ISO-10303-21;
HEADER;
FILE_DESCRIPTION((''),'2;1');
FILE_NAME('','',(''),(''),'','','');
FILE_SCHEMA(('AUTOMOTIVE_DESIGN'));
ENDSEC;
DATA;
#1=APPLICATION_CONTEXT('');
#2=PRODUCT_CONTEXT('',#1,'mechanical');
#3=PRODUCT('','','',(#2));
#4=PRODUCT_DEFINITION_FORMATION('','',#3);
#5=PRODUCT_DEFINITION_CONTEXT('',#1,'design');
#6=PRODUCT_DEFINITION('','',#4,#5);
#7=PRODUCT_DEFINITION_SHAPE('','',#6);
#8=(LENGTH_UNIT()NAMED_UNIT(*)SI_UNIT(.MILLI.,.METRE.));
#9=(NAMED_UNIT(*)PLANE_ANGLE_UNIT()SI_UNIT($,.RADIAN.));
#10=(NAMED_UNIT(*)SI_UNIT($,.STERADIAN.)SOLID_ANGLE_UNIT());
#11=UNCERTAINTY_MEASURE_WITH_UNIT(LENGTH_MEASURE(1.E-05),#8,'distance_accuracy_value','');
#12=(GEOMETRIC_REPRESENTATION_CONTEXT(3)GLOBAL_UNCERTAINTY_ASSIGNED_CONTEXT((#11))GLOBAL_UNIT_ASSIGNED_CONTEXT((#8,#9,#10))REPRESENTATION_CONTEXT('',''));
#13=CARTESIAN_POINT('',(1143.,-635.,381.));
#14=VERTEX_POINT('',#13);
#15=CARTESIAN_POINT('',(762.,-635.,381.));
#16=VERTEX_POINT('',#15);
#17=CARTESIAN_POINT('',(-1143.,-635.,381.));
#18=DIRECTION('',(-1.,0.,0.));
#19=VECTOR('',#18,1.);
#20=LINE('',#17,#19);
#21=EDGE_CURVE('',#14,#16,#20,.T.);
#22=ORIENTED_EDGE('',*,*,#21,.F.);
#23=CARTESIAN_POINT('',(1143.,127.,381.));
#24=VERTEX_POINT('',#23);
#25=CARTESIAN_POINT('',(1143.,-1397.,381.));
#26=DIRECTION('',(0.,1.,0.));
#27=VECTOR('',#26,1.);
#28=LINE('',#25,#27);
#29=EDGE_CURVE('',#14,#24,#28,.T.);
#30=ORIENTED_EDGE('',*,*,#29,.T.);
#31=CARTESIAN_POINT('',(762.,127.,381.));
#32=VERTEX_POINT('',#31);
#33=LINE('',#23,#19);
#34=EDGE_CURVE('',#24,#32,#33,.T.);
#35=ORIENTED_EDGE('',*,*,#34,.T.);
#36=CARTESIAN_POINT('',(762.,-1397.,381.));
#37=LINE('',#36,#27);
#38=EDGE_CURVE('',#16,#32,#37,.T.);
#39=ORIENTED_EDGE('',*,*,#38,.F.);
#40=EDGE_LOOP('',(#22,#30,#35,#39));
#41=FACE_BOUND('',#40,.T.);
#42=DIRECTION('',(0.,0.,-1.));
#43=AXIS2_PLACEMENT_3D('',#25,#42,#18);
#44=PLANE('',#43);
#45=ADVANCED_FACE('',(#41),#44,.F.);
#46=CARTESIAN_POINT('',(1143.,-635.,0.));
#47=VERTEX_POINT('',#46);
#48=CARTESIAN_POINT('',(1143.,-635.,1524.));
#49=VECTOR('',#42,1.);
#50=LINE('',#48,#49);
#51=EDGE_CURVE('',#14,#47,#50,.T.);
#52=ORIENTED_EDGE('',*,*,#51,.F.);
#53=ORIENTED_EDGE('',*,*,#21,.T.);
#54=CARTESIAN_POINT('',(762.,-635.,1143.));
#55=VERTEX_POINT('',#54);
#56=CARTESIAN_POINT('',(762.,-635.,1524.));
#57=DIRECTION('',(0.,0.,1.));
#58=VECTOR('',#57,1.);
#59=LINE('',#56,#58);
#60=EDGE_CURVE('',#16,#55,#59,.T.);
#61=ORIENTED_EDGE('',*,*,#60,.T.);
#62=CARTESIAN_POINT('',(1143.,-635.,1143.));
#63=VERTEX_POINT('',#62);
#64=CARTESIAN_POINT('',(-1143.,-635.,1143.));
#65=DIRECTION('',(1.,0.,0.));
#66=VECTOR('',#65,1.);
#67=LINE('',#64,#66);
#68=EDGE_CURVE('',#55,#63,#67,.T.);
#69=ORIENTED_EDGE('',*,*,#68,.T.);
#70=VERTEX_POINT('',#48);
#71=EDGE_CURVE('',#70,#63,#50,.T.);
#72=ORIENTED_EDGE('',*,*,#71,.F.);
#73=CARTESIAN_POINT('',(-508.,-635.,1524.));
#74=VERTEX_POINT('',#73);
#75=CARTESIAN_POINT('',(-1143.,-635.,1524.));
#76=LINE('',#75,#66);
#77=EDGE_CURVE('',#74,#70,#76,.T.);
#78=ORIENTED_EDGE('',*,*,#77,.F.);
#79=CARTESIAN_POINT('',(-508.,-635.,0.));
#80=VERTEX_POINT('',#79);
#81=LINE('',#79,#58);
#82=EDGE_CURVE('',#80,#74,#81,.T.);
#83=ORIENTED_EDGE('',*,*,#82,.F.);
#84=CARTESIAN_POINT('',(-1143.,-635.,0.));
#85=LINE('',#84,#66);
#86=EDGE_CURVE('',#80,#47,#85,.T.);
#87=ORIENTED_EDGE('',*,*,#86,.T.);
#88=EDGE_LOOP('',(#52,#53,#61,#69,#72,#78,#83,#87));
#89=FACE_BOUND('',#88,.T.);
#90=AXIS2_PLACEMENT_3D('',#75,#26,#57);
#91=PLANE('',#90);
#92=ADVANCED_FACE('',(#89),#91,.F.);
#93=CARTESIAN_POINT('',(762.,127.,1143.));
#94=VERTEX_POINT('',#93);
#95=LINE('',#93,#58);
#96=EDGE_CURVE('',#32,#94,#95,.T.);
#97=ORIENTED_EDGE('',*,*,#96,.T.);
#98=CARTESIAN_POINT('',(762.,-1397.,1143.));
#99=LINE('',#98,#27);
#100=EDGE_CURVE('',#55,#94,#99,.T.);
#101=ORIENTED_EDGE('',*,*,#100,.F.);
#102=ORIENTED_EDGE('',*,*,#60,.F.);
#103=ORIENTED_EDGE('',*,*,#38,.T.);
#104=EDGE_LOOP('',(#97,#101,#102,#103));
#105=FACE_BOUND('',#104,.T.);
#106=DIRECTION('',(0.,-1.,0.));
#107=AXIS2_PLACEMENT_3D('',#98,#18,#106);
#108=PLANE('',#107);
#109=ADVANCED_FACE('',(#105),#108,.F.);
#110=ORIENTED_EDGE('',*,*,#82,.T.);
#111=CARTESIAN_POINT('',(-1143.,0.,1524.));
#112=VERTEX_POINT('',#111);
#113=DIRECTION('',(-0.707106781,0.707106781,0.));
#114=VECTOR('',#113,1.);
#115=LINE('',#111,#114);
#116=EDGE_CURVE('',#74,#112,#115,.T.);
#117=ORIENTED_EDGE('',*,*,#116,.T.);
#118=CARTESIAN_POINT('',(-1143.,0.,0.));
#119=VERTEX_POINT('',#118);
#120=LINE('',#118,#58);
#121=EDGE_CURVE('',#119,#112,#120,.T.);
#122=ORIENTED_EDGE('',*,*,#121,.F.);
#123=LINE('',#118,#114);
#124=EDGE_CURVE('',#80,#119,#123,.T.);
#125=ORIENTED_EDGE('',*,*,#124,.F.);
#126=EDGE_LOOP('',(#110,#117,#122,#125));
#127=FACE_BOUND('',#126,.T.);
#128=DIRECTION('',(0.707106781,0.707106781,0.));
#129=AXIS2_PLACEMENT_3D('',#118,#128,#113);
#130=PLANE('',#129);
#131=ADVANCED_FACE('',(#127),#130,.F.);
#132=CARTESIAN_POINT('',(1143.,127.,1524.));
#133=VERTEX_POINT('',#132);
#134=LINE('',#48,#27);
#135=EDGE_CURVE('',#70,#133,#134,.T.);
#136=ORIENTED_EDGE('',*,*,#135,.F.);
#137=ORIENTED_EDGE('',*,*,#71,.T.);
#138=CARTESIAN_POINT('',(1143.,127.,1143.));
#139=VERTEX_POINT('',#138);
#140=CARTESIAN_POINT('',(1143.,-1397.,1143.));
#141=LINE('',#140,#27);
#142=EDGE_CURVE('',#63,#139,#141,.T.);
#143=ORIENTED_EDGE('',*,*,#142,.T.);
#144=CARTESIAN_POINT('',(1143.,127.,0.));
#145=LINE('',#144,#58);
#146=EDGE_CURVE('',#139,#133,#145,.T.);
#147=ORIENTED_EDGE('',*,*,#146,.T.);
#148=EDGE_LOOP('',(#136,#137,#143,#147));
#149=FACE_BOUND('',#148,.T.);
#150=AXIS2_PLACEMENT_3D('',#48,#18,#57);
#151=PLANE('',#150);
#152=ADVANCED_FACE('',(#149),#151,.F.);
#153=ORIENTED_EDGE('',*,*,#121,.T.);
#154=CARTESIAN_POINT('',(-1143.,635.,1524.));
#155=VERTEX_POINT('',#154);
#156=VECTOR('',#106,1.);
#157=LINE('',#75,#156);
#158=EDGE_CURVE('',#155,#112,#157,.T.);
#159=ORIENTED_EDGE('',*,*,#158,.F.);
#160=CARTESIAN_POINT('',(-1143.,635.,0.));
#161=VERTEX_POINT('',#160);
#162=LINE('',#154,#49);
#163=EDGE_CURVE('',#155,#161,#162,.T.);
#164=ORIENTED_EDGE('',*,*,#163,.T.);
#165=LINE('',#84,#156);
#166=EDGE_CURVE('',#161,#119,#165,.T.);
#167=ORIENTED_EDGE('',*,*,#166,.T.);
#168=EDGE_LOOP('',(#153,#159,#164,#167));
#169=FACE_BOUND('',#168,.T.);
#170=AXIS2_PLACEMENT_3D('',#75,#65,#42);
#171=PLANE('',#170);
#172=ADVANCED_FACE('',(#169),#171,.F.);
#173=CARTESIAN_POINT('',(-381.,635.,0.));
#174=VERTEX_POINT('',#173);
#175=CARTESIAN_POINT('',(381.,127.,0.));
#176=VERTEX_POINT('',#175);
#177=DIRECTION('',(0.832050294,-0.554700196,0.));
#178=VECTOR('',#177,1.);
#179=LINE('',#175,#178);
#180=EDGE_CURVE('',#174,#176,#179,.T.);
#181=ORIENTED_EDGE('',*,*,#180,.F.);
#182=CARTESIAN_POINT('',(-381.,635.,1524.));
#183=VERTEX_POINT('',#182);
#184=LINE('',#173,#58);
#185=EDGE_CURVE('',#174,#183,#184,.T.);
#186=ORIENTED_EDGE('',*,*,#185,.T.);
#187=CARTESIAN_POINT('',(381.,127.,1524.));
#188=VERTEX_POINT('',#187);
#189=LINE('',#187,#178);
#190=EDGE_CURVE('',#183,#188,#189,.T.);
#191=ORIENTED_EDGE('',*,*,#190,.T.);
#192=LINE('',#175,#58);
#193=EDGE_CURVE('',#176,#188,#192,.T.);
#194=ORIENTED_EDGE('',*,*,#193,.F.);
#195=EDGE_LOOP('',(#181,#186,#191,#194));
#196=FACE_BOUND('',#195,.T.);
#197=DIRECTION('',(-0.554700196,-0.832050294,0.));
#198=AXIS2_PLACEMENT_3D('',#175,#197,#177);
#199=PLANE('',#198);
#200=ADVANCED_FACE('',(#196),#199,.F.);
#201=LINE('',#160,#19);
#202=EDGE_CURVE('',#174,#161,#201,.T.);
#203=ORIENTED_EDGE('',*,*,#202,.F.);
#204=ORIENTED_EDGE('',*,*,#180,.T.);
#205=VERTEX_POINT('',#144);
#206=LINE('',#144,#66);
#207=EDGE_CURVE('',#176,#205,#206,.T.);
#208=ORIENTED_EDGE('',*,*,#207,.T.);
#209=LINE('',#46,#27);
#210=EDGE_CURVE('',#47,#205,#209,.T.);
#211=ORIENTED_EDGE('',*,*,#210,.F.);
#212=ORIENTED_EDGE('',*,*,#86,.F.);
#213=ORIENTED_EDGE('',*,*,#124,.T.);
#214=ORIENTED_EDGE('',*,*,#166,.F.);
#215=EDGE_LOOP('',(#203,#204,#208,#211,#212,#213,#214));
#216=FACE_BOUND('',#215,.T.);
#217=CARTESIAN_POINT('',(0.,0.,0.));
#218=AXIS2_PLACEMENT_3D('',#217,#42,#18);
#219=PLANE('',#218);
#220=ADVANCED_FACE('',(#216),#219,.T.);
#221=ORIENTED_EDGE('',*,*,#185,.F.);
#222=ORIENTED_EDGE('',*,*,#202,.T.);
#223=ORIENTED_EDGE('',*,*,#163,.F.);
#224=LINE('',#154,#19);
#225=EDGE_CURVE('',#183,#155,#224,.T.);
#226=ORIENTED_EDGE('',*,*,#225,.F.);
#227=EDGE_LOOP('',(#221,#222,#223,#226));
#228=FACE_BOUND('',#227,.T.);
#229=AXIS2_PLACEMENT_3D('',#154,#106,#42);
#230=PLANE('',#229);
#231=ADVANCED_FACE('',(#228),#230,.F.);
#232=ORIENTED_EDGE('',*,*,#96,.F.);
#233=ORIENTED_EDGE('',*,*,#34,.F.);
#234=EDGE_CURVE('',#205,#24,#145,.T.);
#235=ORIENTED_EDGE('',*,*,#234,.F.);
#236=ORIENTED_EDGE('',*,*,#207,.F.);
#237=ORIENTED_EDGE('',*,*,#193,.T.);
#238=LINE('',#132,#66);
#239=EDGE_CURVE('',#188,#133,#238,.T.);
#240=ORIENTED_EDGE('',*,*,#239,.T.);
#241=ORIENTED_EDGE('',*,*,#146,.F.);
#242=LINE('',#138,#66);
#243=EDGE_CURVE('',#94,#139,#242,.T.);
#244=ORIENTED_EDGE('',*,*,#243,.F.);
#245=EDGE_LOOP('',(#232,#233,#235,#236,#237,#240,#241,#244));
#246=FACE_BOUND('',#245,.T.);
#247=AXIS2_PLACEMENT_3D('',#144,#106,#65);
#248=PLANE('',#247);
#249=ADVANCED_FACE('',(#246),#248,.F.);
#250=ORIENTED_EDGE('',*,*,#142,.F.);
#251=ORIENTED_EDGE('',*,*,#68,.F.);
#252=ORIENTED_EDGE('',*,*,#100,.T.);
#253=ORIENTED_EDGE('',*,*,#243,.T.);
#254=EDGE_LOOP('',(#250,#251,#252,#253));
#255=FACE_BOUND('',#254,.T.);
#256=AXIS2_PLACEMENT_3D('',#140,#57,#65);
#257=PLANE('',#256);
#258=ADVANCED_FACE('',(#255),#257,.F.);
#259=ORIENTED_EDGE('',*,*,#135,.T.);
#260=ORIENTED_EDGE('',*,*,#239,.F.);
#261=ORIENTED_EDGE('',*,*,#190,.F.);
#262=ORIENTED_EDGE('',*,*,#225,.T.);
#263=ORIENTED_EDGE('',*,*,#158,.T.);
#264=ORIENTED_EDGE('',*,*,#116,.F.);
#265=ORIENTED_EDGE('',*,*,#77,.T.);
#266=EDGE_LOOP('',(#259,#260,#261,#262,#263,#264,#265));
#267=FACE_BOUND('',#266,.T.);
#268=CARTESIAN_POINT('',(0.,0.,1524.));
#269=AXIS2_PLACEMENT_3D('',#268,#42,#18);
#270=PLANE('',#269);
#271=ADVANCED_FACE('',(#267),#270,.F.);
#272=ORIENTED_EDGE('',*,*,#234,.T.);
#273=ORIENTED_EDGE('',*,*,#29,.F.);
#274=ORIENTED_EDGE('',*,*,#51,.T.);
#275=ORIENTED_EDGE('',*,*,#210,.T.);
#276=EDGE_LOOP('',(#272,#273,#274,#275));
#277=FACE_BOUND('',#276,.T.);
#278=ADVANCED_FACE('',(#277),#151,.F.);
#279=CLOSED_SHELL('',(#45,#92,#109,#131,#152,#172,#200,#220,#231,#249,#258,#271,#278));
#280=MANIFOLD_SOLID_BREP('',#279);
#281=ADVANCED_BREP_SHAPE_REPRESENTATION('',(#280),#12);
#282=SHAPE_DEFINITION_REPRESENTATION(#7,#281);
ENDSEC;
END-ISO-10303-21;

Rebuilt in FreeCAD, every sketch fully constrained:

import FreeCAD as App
import Part
import Sketcher
from FreeCAD import Vector
Q = App.Units.Quantity

doc = App.newDocument("Part")
body = doc.addObject("PartDesign::Body", "Body")

# Sketch on XY plane
sketch1 = doc.addObject("Sketcher::SketchObject", "Sketch")
body.addObject(sketch1)
sketch1.AttachmentSupport = (doc.XY_Plane, [""])
sketch1.MapMode = "FlatFace"
sketch1.addGeometry([
    Part.LineSegment(Vector(-1143, 635, 0), Vector(-1143, -635, 0)),
    Part.LineSegment(Vector(-1143, -635, 0), Vector(1143, -635, 0)),
    Part.LineSegment(Vector(1143, -635, 0), Vector(1143, 635, 0)),
    Part.LineSegment(Vector(1143, 635, 0), Vector(-1143, 635, 0)),
], False)
sketch1.addConstraint([
    Sketcher.Constraint("Coincident", 0, 2, 1, 1),
    Sketcher.Constraint("Coincident", 1, 2, 2, 1),
    Sketcher.Constraint("Coincident", 2, 2, 3, 1),
    Sketcher.Constraint("Coincident", 3, 2, 0, 1),
    Sketcher.Constraint("Vertical", 0),
    Sketcher.Constraint("Horizontal", 1),
    Sketcher.Constraint("Vertical", 2),
    Sketcher.Constraint("Horizontal", 3),
    Sketcher.Constraint("Symmetric", 0, 2, 2, 2, -1, 1),
    Sketcher.Constraint("DistanceX", 1, 1, 1, 2, Q("90 in")),
    Sketcher.Constraint("DistanceY", 0, 2, 0, 1, Q("50 in")),
])
pad1 = doc.addObject("PartDesign::Pad", "Pad")
body.addObject(pad1)
pad1.Profile = sketch1
pad1.Length = Q("60 in")

# Sketch on XY plane
sketch2 = doc.addObject("Sketcher::SketchObject", "Sketch001")
body.addObject(sketch2)
sketch2.AttachmentSupport = (doc.XY_Plane, [""])
sketch2.MapMode = "FlatFace"
sketch2.AttachmentOffset = App.Placement(Vector(0, 0, 60 * 25.4), App.Rotation())
sketch2.addGeometry([
    Part.LineSegment(Vector(-508, -635, 0), Vector(-1143, 0, 0)),
    Part.LineSegment(Vector(-1143, 0, 0), Vector(-1143, -635, 0)),
    Part.LineSegment(Vector(-1143, -635, 0), Vector(-508, -635, 0)),
], False)
sketch2.addConstraint([
    Sketcher.Constraint("Coincident", 0, 2, 1, 1),
    Sketcher.Constraint("Coincident", 1, 2, 2, 1),
    Sketcher.Constraint("Coincident", 2, 2, 0, 1),
    Sketcher.Constraint("Vertical", 1),
    Sketcher.Constraint("Horizontal", 2),
    Sketcher.Constraint("PointOnObject", 0, 2, -1),
    Sketcher.Constraint("Equal", 2, 1),
    Sketcher.Constraint("DistanceX", 2, 1, 2, 2, Q("25 in")),
    Sketcher.Constraint("DistanceX", 0, 2, -1, 1, Q("45 in")),
])
pocket1 = doc.addObject("PartDesign::Pocket", "Pocket")
body.addObject(pocket1)
pocket1.Profile = sketch2
pocket1.Type = "ThroughAll"

# Sketch on XY plane
sketch3 = doc.addObject("Sketcher::SketchObject", "Sketch002")
body.addObject(sketch3)
sketch3.AttachmentSupport = (doc.XY_Plane, [""])
sketch3.MapMode = "FlatFace"
sketch3.AttachmentOffset = App.Placement(Vector(0, 0, 60 * 25.4), App.Rotation())
sketch3.addGeometry([
    Part.LineSegment(Vector(-381, 635, 0), Vector(381, 127, 0)),
    Part.LineSegment(Vector(381, 127, 0), Vector(1143, 127, 0)),
    Part.LineSegment(Vector(1143, 127, 0), Vector(1143, 635, 0)),
    Part.LineSegment(Vector(1143, 635, 0), Vector(-381, 635, 0)),
], False)
sketch3.addConstraint([
    Sketcher.Constraint("Coincident", 0, 2, 1, 1),
    Sketcher.Constraint("Coincident", 1, 2, 2, 1),
    Sketcher.Constraint("Coincident", 2, 2, 3, 1),
    Sketcher.Constraint("Coincident", 3, 2, 0, 1),
    Sketcher.Constraint("Horizontal", 1),
    Sketcher.Constraint("Vertical", 2),
    Sketcher.Constraint("Horizontal", 3),
    Sketcher.Constraint("DistanceX", 1, 1, 1, 2, Q("30 in")),
    Sketcher.Constraint("DistanceX", 3, 2, 3, 1, Q("60 in")),
    Sketcher.Constraint("DistanceY", 2, 1, 2, 2, Q("20 in")),
    Sketcher.Constraint("DistanceX", -1, 1, 0, 2, Q("15 in")),
    Sketcher.Constraint("DistanceY", -1, 1, 0, 2, Q("5 in")),
])
pocket2 = doc.addObject("PartDesign::Pocket", "Pocket001")
body.addObject(pocket2)
pocket2.Profile = sketch3
pocket2.Length = Q("60 in")

# Sketch on XZ plane
sketch4 = doc.addObject("Sketcher::SketchObject", "Sketch003")
body.addObject(sketch4)
sketch4.AttachmentSupport = (doc.XZ_Plane, [""])
sketch4.MapMode = "FlatFace"
sketch4.AttachmentOffset = App.Placement(Vector(0, 0, -5 * 25.4), App.Rotation())
sketch4.addGeometry([
    Part.LineSegment(Vector(762, 381, 0), Vector(762, 1143, 0)),
    Part.LineSegment(Vector(762, 1143, 0), Vector(1143, 1143, 0)),
    Part.LineSegment(Vector(1143, 1143, 0), Vector(1143, 381, 0)),
    Part.LineSegment(Vector(1143, 381, 0), Vector(762, 381, 0)),
], False)
sketch4.addConstraint([
    Sketcher.Constraint("Coincident", 0, 2, 1, 1),
    Sketcher.Constraint("Coincident", 1, 2, 2, 1),
    Sketcher.Constraint("Coincident", 2, 2, 3, 1),
    Sketcher.Constraint("Coincident", 3, 2, 0, 1),
    Sketcher.Constraint("Vertical", 0),
    Sketcher.Constraint("Horizontal", 1),
    Sketcher.Constraint("Vertical", 2),
    Sketcher.Constraint("Horizontal", 3),
    Sketcher.Constraint("DistanceX", 1, 1, 1, 2, Q("15 in")),
    Sketcher.Constraint("DistanceY", 0, 1, 0, 2, Q("30 in")),
    Sketcher.Constraint("DistanceX", -1, 1, 0, 2, Q("30 in")),
    Sketcher.Constraint("DistanceY", -1, 1, 0, 2, Q("45 in")),
])
pocket3 = doc.addObject("PartDesign::Pocket", "Pocket002")
body.addObject(pocket3)
pocket3.Profile = sketch4
pocket3.Length = Q("60 in")
pocket3.Reversed = True

doc.recompute()
